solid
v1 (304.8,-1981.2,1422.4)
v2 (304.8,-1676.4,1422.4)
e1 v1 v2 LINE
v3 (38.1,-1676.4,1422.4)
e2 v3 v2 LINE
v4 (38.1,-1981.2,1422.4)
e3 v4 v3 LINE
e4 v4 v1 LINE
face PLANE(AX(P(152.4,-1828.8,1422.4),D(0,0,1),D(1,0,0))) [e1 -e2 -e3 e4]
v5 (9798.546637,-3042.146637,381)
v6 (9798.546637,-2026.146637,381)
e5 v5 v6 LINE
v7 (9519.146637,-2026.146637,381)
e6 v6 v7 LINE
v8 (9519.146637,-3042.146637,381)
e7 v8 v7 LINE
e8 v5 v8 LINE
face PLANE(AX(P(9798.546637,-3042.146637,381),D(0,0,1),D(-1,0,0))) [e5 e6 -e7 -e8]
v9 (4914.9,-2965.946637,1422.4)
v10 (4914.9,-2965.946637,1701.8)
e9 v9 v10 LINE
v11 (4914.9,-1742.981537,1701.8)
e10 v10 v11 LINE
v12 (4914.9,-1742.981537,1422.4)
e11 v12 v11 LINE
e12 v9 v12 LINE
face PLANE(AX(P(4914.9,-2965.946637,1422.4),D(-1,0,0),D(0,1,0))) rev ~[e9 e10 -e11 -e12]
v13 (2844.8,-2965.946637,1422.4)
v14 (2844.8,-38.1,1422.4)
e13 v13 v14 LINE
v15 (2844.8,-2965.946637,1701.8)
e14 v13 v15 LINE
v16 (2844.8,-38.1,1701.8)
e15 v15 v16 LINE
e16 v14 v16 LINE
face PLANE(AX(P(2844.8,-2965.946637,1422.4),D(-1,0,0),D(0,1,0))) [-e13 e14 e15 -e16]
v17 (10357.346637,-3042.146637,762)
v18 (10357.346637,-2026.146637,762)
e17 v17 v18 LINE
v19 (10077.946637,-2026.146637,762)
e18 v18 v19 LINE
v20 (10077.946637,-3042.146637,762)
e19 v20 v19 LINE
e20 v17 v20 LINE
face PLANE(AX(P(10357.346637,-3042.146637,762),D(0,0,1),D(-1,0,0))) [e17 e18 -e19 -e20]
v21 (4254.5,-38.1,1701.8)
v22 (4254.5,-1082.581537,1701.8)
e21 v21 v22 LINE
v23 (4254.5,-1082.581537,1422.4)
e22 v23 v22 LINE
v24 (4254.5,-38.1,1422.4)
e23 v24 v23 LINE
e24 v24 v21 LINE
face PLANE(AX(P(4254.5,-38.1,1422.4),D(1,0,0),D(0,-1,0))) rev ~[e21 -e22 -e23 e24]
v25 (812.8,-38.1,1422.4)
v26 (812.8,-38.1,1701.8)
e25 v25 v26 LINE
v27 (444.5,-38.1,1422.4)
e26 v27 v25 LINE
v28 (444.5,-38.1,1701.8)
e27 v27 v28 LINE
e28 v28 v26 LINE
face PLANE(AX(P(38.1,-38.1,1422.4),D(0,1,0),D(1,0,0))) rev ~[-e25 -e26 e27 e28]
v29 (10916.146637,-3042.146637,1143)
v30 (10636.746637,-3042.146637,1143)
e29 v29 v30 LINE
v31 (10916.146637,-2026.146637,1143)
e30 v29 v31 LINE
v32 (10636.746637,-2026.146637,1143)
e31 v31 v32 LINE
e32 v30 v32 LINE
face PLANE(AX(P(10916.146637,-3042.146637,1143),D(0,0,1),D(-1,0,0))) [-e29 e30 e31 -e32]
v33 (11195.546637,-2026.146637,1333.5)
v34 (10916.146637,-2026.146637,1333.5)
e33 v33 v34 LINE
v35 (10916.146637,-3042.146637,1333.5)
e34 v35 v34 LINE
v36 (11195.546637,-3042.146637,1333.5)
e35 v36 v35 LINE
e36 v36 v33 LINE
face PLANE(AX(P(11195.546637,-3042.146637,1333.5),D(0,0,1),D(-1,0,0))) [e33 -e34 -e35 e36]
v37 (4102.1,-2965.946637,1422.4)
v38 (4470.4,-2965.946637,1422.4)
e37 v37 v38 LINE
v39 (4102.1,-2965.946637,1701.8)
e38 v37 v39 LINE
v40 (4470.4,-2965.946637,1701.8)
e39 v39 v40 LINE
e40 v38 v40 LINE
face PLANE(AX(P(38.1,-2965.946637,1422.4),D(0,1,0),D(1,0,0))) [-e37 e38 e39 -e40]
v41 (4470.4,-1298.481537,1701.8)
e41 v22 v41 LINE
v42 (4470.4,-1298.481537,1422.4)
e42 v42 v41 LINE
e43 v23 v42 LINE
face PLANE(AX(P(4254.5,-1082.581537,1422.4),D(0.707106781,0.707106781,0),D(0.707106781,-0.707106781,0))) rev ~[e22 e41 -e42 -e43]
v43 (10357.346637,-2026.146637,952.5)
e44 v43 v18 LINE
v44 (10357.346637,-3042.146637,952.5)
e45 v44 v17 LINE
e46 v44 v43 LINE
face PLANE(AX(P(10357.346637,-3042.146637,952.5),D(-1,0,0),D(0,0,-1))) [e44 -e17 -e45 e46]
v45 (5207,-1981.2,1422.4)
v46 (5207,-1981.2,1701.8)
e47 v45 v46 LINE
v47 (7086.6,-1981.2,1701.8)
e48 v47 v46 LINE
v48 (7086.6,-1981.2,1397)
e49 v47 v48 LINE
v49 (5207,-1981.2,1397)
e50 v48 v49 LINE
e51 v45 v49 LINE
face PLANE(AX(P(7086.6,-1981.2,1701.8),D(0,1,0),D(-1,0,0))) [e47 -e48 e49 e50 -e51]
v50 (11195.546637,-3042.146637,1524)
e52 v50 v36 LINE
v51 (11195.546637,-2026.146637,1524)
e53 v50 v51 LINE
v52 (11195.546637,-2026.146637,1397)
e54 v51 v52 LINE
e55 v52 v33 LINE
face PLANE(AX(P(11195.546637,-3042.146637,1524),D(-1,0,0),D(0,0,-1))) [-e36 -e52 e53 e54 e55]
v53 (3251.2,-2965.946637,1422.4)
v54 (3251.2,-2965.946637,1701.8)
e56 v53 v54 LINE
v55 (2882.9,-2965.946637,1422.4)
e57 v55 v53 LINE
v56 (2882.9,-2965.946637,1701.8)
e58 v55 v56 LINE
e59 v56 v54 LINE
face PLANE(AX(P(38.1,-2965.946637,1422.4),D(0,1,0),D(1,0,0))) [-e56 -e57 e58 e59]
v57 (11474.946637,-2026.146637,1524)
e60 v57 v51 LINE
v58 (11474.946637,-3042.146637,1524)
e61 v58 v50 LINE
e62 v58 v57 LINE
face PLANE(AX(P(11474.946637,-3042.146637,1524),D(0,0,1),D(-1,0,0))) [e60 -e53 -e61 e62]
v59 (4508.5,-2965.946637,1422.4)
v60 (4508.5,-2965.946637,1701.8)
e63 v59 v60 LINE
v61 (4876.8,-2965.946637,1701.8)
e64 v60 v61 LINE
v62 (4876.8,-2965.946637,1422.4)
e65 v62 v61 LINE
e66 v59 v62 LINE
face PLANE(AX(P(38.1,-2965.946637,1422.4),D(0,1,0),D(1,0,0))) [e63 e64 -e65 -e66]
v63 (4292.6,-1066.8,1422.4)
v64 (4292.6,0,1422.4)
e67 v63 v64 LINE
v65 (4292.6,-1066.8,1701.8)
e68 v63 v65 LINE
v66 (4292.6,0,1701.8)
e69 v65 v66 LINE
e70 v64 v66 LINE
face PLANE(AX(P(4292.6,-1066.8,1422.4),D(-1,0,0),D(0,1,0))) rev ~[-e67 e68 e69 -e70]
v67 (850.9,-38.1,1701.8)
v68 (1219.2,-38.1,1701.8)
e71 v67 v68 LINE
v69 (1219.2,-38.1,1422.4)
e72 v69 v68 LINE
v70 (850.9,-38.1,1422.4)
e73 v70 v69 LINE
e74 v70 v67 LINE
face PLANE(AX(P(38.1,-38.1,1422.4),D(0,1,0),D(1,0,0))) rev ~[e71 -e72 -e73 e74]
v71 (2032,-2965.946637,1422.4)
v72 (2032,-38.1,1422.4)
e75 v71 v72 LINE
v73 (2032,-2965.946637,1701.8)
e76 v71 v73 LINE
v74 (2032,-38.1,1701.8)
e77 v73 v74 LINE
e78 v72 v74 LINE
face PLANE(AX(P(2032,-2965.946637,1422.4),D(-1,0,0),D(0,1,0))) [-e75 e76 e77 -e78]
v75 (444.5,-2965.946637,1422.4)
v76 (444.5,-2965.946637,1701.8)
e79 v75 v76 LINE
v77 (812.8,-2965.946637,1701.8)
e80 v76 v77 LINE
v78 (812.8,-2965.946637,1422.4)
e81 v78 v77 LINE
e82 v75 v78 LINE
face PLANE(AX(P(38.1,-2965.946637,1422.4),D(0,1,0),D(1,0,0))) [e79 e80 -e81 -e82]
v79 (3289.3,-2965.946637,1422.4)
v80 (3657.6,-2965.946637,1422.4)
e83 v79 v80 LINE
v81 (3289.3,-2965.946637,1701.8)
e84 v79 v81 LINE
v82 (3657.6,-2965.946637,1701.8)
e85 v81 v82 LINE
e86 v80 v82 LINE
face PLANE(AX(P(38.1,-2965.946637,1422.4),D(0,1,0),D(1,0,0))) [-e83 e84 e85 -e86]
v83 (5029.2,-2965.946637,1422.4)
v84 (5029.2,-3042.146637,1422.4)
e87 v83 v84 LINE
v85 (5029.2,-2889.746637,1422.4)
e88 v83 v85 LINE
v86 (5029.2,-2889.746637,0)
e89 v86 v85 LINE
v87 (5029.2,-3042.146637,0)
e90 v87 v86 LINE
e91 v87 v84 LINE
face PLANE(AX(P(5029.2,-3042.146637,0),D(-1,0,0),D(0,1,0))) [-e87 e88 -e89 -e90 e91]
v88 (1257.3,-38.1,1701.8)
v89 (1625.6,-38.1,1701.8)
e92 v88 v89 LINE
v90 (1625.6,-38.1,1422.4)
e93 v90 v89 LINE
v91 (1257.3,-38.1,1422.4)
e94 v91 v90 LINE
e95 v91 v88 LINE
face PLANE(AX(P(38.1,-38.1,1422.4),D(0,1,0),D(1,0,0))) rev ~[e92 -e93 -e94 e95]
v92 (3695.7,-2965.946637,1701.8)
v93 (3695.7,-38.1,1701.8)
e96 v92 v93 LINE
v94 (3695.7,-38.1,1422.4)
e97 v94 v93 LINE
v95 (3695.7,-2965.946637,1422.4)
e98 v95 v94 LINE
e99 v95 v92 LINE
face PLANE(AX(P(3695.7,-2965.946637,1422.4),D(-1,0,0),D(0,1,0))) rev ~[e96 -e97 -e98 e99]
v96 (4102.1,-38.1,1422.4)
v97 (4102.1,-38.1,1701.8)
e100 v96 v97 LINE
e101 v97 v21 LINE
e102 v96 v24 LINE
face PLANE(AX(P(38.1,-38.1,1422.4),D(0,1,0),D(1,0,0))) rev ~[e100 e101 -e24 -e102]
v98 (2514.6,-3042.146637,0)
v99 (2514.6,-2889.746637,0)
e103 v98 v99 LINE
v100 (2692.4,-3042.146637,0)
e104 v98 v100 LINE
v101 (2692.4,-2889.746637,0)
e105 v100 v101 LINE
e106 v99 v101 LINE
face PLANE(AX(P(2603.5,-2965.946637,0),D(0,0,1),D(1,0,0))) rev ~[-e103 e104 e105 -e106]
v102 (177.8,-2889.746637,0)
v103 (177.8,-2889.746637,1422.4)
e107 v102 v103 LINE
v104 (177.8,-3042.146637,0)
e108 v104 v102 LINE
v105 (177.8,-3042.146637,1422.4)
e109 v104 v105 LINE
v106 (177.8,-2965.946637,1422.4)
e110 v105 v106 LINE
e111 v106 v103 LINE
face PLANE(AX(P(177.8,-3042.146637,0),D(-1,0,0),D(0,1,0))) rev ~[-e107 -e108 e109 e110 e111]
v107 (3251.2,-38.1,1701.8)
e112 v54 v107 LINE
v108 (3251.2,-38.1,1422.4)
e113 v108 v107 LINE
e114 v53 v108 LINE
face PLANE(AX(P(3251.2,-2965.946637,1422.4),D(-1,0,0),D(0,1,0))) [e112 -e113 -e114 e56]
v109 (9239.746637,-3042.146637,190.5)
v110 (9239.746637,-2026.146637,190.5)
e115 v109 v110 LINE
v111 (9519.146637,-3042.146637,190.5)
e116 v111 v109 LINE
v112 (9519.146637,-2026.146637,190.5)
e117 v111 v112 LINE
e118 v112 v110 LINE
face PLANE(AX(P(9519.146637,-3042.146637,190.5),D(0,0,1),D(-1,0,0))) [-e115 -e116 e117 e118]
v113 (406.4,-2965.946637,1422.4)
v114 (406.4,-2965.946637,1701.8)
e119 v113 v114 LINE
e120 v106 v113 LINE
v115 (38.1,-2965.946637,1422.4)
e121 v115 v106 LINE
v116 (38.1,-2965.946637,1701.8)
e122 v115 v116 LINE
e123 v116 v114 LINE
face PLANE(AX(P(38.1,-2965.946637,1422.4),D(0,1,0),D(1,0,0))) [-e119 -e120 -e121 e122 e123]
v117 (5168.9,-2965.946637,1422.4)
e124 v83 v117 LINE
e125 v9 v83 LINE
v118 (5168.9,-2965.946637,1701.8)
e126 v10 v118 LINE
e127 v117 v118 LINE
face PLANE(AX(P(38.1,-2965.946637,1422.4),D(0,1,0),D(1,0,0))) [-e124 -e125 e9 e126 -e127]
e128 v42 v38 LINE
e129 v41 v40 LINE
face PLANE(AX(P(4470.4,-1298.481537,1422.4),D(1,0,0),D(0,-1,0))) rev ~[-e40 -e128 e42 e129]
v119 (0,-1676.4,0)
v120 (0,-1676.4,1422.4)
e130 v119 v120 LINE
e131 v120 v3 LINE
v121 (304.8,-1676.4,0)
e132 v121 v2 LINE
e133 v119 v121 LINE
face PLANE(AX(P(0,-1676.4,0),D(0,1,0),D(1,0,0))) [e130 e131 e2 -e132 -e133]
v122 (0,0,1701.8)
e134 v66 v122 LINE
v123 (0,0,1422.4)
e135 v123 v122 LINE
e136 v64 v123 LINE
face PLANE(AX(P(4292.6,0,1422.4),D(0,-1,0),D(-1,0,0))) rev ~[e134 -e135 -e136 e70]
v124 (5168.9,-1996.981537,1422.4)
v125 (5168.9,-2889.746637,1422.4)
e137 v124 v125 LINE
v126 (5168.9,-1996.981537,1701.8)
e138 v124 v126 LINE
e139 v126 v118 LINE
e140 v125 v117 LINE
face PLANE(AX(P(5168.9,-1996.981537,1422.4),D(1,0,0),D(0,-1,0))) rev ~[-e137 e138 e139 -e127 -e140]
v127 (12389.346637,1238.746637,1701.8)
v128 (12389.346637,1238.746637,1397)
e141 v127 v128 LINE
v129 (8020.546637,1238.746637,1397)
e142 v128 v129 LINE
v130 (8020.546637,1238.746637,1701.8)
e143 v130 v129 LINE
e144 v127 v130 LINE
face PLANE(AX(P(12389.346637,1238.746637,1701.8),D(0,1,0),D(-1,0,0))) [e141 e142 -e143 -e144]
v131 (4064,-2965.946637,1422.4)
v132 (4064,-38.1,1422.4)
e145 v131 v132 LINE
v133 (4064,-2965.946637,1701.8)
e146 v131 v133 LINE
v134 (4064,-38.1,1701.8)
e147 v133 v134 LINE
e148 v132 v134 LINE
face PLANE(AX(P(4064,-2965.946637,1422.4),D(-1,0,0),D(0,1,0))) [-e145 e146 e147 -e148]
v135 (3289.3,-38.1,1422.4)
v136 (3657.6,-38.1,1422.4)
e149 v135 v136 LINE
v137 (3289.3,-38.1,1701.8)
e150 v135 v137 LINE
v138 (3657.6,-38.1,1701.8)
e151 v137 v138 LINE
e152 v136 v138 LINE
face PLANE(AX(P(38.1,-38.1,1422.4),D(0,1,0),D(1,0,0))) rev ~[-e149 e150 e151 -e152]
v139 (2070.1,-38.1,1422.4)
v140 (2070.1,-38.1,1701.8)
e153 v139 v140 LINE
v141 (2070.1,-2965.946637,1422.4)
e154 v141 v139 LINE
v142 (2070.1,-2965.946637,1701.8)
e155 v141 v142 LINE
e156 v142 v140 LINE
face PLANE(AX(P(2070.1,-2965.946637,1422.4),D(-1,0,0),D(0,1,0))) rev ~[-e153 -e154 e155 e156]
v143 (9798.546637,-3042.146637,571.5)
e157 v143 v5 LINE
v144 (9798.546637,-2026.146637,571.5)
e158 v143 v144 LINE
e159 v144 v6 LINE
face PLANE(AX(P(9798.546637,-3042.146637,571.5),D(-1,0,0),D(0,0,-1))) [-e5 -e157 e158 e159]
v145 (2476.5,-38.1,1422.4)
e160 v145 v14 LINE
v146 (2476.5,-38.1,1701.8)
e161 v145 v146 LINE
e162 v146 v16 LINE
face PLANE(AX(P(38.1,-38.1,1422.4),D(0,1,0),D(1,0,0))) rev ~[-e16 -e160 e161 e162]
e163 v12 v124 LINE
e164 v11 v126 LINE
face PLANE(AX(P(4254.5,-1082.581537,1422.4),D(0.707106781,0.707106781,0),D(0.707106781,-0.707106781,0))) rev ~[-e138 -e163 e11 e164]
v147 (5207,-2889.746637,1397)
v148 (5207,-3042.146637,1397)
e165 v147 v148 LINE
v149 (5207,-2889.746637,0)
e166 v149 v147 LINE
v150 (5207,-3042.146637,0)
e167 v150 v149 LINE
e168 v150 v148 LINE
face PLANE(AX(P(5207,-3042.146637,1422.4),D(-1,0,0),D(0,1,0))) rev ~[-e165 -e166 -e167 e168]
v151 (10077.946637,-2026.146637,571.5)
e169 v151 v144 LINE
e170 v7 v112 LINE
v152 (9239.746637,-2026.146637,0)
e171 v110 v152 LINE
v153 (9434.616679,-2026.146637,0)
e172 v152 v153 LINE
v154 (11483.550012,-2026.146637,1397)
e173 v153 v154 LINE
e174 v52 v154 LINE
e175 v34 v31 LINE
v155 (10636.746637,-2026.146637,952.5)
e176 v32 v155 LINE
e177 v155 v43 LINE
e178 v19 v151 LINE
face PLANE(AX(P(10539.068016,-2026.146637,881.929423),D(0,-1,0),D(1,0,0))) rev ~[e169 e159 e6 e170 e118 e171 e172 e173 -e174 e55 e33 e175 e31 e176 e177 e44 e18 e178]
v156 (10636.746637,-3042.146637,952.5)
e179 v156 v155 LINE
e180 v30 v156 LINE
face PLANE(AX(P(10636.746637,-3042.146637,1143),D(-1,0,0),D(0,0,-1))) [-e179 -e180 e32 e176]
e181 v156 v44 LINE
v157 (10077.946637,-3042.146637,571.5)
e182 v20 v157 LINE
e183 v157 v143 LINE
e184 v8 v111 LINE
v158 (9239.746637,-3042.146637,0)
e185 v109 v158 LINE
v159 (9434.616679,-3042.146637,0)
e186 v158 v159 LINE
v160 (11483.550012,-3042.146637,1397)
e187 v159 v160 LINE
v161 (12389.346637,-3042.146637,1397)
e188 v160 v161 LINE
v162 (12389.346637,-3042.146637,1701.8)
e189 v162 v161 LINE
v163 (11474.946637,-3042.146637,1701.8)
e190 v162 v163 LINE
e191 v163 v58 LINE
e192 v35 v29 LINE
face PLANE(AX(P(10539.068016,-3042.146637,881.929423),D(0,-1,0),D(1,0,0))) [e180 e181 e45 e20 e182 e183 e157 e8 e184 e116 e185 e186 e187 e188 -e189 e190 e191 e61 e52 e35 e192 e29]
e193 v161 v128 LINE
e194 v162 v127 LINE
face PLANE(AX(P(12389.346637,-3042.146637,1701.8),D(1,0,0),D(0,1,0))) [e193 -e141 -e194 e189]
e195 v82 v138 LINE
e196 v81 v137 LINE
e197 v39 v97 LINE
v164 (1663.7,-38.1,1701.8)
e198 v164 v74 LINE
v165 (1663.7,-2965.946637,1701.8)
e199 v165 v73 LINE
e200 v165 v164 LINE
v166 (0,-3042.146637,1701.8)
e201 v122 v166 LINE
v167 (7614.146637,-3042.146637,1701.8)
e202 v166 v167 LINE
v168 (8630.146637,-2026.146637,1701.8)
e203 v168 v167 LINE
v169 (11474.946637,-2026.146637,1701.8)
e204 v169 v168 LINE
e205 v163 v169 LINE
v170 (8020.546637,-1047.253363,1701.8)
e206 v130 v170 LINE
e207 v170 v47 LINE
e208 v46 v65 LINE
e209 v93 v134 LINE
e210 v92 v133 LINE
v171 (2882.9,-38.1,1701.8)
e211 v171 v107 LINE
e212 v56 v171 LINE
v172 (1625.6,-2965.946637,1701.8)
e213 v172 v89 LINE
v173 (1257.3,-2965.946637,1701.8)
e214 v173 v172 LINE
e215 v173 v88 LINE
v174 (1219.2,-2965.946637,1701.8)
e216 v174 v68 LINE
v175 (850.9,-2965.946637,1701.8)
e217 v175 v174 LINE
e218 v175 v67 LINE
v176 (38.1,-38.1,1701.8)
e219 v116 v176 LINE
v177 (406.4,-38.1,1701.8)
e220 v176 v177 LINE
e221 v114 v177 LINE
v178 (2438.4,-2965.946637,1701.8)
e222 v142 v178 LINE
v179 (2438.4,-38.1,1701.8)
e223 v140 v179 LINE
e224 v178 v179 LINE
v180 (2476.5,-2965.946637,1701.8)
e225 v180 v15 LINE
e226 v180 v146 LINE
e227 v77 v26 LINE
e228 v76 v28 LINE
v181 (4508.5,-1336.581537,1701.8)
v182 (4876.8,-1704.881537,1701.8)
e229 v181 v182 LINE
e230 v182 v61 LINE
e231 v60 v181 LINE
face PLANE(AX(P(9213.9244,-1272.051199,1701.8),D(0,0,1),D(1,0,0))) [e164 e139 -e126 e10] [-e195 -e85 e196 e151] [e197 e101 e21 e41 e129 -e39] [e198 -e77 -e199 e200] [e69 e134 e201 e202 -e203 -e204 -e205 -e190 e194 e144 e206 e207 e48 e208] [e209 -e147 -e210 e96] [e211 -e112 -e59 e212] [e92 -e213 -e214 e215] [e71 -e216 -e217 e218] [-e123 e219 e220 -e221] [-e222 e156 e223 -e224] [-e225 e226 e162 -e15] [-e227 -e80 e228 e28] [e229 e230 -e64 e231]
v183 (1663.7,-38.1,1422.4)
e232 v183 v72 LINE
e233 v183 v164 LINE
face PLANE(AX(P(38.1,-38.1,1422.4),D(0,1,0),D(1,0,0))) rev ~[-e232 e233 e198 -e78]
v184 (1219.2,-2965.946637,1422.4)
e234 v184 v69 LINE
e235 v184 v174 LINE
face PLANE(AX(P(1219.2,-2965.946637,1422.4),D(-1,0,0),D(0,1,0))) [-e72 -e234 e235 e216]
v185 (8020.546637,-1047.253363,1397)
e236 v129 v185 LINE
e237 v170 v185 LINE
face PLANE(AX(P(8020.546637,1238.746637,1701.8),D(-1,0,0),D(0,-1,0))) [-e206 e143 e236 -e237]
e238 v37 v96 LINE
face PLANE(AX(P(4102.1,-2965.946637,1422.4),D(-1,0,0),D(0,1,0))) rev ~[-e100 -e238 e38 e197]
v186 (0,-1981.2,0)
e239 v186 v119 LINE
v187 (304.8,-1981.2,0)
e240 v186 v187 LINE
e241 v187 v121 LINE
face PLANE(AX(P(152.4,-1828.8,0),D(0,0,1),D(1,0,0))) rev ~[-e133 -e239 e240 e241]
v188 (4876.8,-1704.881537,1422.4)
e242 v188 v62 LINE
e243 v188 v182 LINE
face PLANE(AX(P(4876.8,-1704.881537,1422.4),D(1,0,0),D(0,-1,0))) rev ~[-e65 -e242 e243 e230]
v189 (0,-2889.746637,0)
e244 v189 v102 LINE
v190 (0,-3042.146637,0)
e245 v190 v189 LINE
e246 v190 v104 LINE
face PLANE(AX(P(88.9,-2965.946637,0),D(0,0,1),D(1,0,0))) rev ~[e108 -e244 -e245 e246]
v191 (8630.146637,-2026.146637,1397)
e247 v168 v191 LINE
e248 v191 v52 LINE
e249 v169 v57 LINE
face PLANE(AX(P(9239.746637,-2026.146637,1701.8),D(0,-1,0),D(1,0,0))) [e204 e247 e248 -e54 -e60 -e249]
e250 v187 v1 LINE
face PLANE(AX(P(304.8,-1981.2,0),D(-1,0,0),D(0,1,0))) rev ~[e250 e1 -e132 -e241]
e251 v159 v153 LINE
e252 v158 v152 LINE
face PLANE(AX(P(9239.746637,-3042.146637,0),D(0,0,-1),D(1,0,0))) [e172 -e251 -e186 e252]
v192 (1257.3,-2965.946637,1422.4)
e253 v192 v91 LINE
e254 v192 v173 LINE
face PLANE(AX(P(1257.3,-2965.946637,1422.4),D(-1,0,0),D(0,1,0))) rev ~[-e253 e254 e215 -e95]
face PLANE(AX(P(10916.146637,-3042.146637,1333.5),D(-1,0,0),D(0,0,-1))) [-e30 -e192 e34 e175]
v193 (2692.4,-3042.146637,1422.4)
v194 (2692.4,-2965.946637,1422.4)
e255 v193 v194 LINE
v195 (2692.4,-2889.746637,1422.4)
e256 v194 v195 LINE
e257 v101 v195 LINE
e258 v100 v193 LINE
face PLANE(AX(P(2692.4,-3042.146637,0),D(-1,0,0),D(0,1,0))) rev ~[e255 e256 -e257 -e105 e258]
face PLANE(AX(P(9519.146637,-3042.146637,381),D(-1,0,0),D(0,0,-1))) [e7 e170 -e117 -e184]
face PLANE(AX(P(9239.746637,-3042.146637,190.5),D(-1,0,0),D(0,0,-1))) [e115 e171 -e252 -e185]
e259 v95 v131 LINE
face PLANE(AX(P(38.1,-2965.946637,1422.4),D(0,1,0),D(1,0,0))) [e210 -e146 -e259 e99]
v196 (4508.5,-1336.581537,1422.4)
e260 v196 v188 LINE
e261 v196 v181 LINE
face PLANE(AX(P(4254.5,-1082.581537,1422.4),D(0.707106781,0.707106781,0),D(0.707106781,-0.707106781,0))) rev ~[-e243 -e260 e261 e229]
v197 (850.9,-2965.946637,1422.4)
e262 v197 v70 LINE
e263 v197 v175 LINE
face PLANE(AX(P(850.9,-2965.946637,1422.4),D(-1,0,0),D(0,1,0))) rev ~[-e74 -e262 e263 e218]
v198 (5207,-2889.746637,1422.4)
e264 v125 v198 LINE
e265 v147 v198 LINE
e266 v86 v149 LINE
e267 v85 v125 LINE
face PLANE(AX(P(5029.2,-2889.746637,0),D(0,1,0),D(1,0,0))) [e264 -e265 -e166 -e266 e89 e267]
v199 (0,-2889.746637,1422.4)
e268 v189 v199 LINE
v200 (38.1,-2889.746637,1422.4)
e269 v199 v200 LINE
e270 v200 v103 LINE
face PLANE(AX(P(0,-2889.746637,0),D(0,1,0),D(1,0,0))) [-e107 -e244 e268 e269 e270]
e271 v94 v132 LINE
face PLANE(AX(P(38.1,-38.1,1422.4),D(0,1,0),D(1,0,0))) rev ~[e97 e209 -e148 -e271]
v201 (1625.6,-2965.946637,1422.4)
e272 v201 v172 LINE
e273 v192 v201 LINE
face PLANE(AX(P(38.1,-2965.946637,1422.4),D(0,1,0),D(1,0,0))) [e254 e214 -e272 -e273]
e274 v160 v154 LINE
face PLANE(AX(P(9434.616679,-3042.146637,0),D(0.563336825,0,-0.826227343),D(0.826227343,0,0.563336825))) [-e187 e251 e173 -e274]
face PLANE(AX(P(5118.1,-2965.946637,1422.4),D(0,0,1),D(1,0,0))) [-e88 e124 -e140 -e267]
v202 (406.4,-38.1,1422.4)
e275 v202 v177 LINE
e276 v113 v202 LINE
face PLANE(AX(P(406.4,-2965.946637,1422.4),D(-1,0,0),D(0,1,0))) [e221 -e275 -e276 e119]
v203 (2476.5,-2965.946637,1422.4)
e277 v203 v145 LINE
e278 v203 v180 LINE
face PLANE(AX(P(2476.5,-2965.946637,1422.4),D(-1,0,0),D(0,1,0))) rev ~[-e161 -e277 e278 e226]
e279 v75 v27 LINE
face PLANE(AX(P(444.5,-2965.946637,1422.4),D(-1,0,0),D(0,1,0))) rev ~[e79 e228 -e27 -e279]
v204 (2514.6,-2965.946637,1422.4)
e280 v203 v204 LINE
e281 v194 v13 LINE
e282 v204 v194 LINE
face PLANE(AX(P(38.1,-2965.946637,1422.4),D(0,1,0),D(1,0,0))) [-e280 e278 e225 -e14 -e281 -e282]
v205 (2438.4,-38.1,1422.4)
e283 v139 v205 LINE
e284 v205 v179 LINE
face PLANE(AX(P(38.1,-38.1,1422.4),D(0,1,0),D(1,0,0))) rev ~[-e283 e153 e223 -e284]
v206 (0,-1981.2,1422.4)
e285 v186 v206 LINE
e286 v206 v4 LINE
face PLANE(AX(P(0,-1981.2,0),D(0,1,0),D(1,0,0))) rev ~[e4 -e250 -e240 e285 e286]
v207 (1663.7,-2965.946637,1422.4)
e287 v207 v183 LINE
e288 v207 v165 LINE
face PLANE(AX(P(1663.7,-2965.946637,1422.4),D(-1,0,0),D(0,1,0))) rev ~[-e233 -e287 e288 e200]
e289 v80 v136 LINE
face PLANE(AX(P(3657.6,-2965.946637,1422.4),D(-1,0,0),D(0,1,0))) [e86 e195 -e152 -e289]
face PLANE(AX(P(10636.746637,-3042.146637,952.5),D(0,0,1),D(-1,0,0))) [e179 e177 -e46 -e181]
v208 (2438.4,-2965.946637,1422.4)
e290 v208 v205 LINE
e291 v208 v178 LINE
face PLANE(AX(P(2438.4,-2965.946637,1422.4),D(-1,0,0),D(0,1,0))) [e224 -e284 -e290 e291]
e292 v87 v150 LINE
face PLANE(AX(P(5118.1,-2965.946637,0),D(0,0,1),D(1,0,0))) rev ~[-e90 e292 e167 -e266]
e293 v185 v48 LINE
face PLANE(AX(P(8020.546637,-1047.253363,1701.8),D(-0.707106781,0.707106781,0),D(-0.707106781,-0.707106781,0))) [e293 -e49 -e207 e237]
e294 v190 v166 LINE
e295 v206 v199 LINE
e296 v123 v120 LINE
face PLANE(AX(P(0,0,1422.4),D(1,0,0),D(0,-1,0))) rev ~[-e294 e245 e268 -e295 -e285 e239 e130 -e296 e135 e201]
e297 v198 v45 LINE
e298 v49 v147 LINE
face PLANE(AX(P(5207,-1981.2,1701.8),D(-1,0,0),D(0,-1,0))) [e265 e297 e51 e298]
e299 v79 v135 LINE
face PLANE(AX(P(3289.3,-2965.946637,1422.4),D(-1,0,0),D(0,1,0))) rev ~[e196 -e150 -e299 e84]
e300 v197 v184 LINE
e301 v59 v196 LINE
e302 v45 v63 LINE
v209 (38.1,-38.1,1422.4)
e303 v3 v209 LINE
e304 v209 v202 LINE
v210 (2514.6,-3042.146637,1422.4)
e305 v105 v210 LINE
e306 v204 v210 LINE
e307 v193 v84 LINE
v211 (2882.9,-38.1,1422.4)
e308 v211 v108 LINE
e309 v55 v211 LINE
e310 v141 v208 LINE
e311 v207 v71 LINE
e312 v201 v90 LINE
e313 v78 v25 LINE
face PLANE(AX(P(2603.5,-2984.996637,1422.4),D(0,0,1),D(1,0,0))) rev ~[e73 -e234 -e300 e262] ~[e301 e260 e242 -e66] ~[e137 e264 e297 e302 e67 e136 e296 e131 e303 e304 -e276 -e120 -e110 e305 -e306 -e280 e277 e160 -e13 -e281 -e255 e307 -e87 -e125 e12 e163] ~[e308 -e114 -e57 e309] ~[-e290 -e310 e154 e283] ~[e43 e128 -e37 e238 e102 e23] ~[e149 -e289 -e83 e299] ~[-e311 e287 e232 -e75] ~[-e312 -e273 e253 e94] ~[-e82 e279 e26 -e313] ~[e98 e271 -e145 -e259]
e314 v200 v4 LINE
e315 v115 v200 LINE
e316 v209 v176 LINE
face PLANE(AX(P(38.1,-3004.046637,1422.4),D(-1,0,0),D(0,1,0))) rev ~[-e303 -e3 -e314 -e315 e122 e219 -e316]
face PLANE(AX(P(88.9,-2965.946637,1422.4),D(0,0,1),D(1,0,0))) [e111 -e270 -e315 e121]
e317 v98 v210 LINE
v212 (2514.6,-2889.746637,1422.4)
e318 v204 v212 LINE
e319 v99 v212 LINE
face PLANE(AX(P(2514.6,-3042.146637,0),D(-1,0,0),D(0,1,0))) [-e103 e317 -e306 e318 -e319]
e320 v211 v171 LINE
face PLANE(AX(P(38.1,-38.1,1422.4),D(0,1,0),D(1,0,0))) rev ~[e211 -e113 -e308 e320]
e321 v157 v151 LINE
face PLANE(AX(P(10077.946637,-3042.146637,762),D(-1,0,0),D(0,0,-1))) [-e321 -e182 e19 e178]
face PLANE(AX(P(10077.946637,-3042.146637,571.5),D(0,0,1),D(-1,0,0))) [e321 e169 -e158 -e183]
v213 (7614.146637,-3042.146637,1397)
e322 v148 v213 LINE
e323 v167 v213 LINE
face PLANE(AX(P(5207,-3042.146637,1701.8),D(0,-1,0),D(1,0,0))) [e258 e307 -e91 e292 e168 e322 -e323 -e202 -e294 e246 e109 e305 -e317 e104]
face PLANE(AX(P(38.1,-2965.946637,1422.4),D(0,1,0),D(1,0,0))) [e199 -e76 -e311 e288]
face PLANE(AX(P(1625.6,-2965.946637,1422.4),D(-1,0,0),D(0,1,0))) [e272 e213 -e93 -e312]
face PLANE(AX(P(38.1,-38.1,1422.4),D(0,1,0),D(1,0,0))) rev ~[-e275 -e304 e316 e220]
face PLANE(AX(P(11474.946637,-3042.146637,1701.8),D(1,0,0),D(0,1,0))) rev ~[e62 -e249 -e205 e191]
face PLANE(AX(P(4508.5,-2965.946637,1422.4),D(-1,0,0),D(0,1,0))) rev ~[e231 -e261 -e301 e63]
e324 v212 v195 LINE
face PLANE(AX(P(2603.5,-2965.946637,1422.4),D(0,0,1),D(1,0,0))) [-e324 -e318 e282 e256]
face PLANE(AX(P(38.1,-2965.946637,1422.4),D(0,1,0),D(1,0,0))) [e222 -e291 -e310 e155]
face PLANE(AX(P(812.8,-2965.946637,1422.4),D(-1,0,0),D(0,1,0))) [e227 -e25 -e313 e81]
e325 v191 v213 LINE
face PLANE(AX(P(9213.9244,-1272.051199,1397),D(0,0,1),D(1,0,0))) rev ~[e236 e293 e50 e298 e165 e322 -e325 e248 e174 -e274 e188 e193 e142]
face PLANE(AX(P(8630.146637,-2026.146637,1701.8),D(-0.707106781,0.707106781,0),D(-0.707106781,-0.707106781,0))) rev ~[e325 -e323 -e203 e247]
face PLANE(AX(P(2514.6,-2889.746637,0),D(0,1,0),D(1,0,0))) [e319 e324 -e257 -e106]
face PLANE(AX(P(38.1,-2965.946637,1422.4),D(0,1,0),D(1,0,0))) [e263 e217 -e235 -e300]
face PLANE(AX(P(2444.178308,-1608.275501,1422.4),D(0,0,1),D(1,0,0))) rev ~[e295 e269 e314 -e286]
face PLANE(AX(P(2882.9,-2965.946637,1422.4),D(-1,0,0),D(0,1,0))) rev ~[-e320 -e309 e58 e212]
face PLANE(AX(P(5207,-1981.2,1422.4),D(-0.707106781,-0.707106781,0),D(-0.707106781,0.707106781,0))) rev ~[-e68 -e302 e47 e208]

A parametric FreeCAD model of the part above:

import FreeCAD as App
import Part
import Sketcher
Q = App.Units.Quantity


def add_polygon(sketch, points):
    """Adds a closed chain of lines whose ends are joined by coincident constraints."""
    first, n = sketch.GeometryCount, len(points)
    for a, b in zip(points, points[1:] + points[:1]):
        sketch.addGeometry(Part.LineSegment(App.Vector(*a, 0), App.Vector(*b, 0)), False)
    for i in range(n):
        sketch.addConstraint(Sketcher.Constraint("Coincident", first + i, 2, first + (i + 1) % n, 1))

doc = App.newDocument("Part")
params = doc.addObject("Spreadsheet::Sheet", "Params")
for row, (alias, value) in enumerate([
    ("sketch1_width", "12 in"),
    ("pad1_length", "56 in"),
    ("sketch2_width", "7 in"),
    ("sketch2_height", "6 in"),
    ("pad2_length", "56 in"),
    ("sketch3_width", "7 in"),
    ("sketch3_height", "6 in"),
    ("pad3_length", "56 in"),
    ("sketch4_width", "7 in"),
    ("sketch4_height", "6 in"),
    ("pad4_length", "56 in"),
    ("sketch5_width", "169 in"),
    ("sketch5_width2", "205 in"),
    ("sketch5_width3", "166 in"),
    ("sketch5_height", "42 in"),
    ("pad5_length", "11 in"),
    ("sketch6_width", "202 in"),
    ("sketch6_height", "1.5 in"),
    ("pad6_length", "11 in"),
    ("sketch7_width", "1.5 in"),
    ("pad7_length", "11 in"),
    ("sketch8_width", "74 in"),
    ("sketch8_width2", "172 in"),
    ("sketch8_height", "90 in"),
    ("sketch8_length", "52 in"),
    ("pad8_length", "12 in"),
    ("sketch9_width", "88 in"),
    ("sketch9_height", "40 in"),
    ("sketch10_width", "11 in"),
    ("sketch10_height", "7 in"),
    ("sketch10_height2", "7.5 in"),
    ("pad9_length", "40 in"),
    ("sketch11_width", "24 in"),
    ("sketch11_width2", "64 in"),
    ("sketch11_height", "40 in"),
], start=1):
    params.set(f"A{row}", alias)
    params.set(f"B{row}", "=" + value)
    params.setAlias(f"B{row}", alias)

body = doc.addObject("PartDesign::Body", "Body")

# Sketch on XY plane
sketch1 = doc.addObject("Sketcher::SketchObject", "Sketch")
body.addObject(sketch1)
sketch1.AttachmentSupport = (doc.XY_Plane, [""])
sketch1.MapMode = "FlatFace"
add_polygon(sketch1, [(0, -1676.4), (0, -1981.2), (304.8, -1981.2), (304.8, -1676.4)])  # lines 0-3
sketch1.addConstraint([
    Sketcher.Constraint("Vertical", 0),
    Sketcher.Constraint("Horizontal", 1),
    Sketcher.Constraint("Vertical", 2),
    Sketcher.Constraint("Horizontal", 3),
    Sketcher.Constraint("PointOnObject", 0, 2, -2),
    Sketcher.Constraint("Equal", 3, 0),
    Sketcher.Constraint("DistanceX", 1, 1, 1, 2, Q("12 in")),
    Sketcher.Constraint("DistanceY", 0, 2, -1, 1, Q("78 in")),
])
sketch1.setExpression("Constraints[10]", "Params.sketch1_width")
pad1 = doc.addObject("PartDesign::Pad", "Pad")
body.addObject(pad1)
pad1.Profile = sketch1
pad1.setExpression("Length", "Params.pad1_length")
body2 = doc.addObject("PartDesign::Body", "Body001")

# Sketch on XY plane
sketch2 = doc.addObject("Sketcher::SketchObject", "Sketch001")
body2.addObject(sketch2)
sketch2.AttachmentSupport = (doc.getObject("XY_Plane001"), [""])
sketch2.MapMode = "FlatFace"
add_polygon(sketch2, [(0, -2889.746637), (0, -3042.146637), (177.8, -3042.146637), (177.8, -2889.746637)])  # lines 0-3
sketch2.addConstraint([
    Sketcher.Constraint("Vertical", 0),
    Sketcher.Constraint("Horizontal", 1),
    Sketcher.Constraint("Vertical", 2),
    Sketcher.Constraint("Horizontal", 3),
    Sketcher.Constraint("PointOnObject", 0, 2, -2),
    Sketcher.Constraint("DistanceX", 1, 1, 1, 2, Q("7 in")),
    Sketcher.Constraint("DistanceY", 0, 2, 0, 1, Q("6 in")),
    Sketcher.Constraint("DistanceY", 0, 2, -1, 1, Q("3042.146637 mm")),
])
sketch2.setExpression("Constraints[9]", "Params.sketch2_width")
sketch2.setExpression("Constraints[10]", "Params.sketch2_height")
pad2 = doc.addObject("PartDesign::Pad", "Pad001")
body2.addObject(pad2)
pad2.Profile = sketch2
pad2.setExpression("Length", "Params.pad2_length")
body3 = doc.addObject("PartDesign::Body", "Body002")

# Sketch on XY plane
sketch3 = doc.addObject("Sketcher::SketchObject", "Sketch002")
body3.addObject(sketch3)
sketch3.AttachmentSupport = (doc.getObject("XY_Plane002"), [""])
sketch3.MapMode = "FlatFace"
add_polygon(sketch3, [(2514.6, -2889.746637), (2514.6, -3042.146637), (2692.4, -3042.146637), (2692.4, -2889.746637)])  # lines 0-3
sketch3.addConstraint([
    Sketcher.Constraint("Vertical", 0),
    Sketcher.Constraint("Horizontal", 1),
    Sketcher.Constraint("Vertical", 2),
    Sketcher.Constraint("Horizontal", 3),
    Sketcher.Constraint("DistanceX", 1, 1, 1, 2, Q("7 in")),
    Sketcher.Constraint("DistanceY", 0, 2, 0, 1, Q("6 in")),
    Sketcher.Constraint("DistanceX", -1, 1, 0, 2, Q("99 in")),
    Sketcher.Constraint("DistanceY", 0, 2, -1, 1, Q("3042.146637 mm")),
])
sketch3.setExpression("Constraints[8]", "Params.sketch3_width")
sketch3.setExpression("Constraints[9]", "Params.sketch3_height")
pad3 = doc.addObject("PartDesign::Pad", "Pad002")
body3.addObject(pad3)
pad3.Profile = sketch3
pad3.setExpression("Length", "Params.pad3_length")
body4 = doc.addObject("PartDesign::Body", "Body003")

# Sketch on XY plane
sketch4 = doc.addObject("Sketcher::SketchObject", "Sketch003")
body4.addObject(sketch4)
sketch4.AttachmentSupport = (doc.getObject("XY_Plane003"), [""])
sketch4.MapMode = "FlatFace"
add_polygon(sketch4, [(5029.2, -2889.746637), (5029.2, -3042.146637), (5207, -3042.146637), (5207, -2889.746637)])  # lines 0-3
sketch4.addConstraint([
    Sketcher.Constraint("Vertical", 0),
    Sketcher.Constraint("Horizontal", 1),
    Sketcher.Constraint("Vertical", 2),
    Sketcher.Constraint("Horizontal", 3),
    Sketcher.Constraint("DistanceX", 1, 1, 1, 2, Q("7 in")),
    Sketcher.Constraint("DistanceY", 0, 2, 0, 1, Q("6 in")),
    Sketcher.Constraint("DistanceX", -1, 1, 0, 2, Q("198 in")),
    Sketcher.Constraint("DistanceY", 0, 2, -1, 1, Q("3042.146637 mm")),
])
sketch4.setExpression("Constraints[8]", "Params.sketch4_width")
sketch4.setExpression("Constraints[9]", "Params.sketch4_height")
pad4 = doc.addObject("PartDesign::Pad", "Pad003")
body4.addObject(pad4)
pad4.Profile = sketch4
pad4.setExpression("Length", "Params.pad4_length")
body.AllowCompound = True
doc.recompute()

boolean = doc.addObject("PartDesign::Boolean", "Boolean")
body.addObject(boolean)
boolean.Type = "Fuse"
boolean.addObjects([body2])
doc.recompute()

boolean2 = doc.addObject("PartDesign::Boolean", "Boolean001")
body.addObject(boolean2)
boolean2.Type = "Fuse"
boolean2.addObjects([body3])
doc.recompute()

boolean3 = doc.addObject("PartDesign::Boolean", "Boolean002")
body.addObject(boolean3)
boolean3.Type = "Fuse"
boolean3.addObjects([body4])

# Sketch on XY plane
sketch5 = doc.addObject("Sketcher::SketchObject", "Sketch004")
body.addObject(sketch5)
sketch5.AttachmentSupport = (doc.XY_Plane, [""])
sketch5.MapMode = "FlatFace"
sketch5.AttachmentOffset = App.Placement(App.Vector(0, 0, 56 * 25.4), App.Rotation())
add_polygon(sketch5, [(4292.6, 0), (0, 0), (0, -3042.146637), (5207, -3042.146637), (5207, -1981.2), (4292.6, -1066.8)])  # lines 0-5
add_polygon(sketch5, [(38.1, -3004.046637), (38.1, -38.1), (4254.5, -38.1), (4254.5, -1082.581537), (5168.9, -1996.981537), (5168.9, -3004.046637)])  # lines 6-11
sketch5.addConstraint([
    Sketcher.Constraint("Horizontal", 0),
    Sketcher.Constraint("Vertical", 1),
    Sketcher.Constraint("Horizontal", 2),
    Sketcher.Constraint("Vertical", 3),
    Sketcher.Constraint("Vertical", 5),
    Sketcher.Constraint("Vertical", 6),
    Sketcher.Constraint("Horizontal", 7),
    Sketcher.Constraint("Vertical", 8),
    Sketcher.Constraint("Vertical", 10),
    Sketcher.Constraint("Horizontal", 11),
    Sketcher.Constraint("Coincident", 0, 2, -1, 1),
    Sketcher.Constraint("Parallel", 4, 9),
    Sketcher.Constraint("Equal", 4, 9),
    Sketcher.Constraint("DistanceX", 0, 2, 0, 1, Q("169 in")),
    Sketcher.Constraint("DistanceX", 2, 1, 2, 2, Q("205 in")),
    Sketcher.Constraint("DistanceX", 7, 1, 7, 2, Q("166 in")),
    Sketcher.Constraint("DistanceY", 5, 1, 5, 2, Q("42 in")),
    Sketcher.Constraint("DistanceY", 3, 2, -1, 1, Q("78 in")),
    Sketcher.Constraint("DistanceX", -1, 1, 6, 2, Q("1.5 in")),
    Sketcher.Constraint("DistanceY", 6, 2, -1, 1, Q("1.5 in")),
    Sketcher.Constraint("DistanceY", 2, 2, 10, 2, Q("1.5 in")),
    Sketcher.Constraint("DistanceY", 10, 2, 10, 1, Q("1007.0651 mm")),
    Sketcher.Constraint("DistanceY", 1, 2, 1, 1, Q("3042.146637 mm")),
])
sketch5.setExpression("Constraints[25]", "Params.sketch5_width")
sketch5.setExpression("Constraints[26]", "Params.sketch5_width2")
sketch5.setExpression("Constraints[27]", "Params.sketch5_width3")
sketch5.setExpression("Constraints[28]", "Params.sketch5_height")
pad5 = doc.addObject("PartDesign::Pad", "Pad004")
body.addObject(pad5)
pad5.Profile = sketch5
pad5.setExpression("Length", "Params.pad5_length")

# Sketch on XY plane
sketch6 = doc.addObject("Sketcher::SketchObject", "Sketch005")
body.addObject(sketch6)
sketch6.AttachmentSupport = (doc.XY_Plane, [""])
sketch6.MapMode = "FlatFace"
sketch6.AttachmentOffset = App.Placement(App.Vector(0, 0, 56 * 25.4), App.Rotation())
add_polygon(sketch6, [(38.1, -2965.946637), (38.1, -3004.046637), (5168.9, -3004.046637), (5168.9, -2965.946637)])  # lines 0-3
sketch6.addConstraint([
    Sketcher.Constraint("Vertical", 0),
    Sketcher.Constraint("Horizontal", 1),
    Sketcher.Constraint("Vertical", 2),
    Sketcher.Constraint("Horizontal", 3),
    Sketcher.Constraint("DistanceX", 1, 1, 1, 2, Q("202 in")),
    Sketcher.Constraint("DistanceY", 0, 2, 0, 1, Q("1.5 in")),
    Sketcher.Constraint("DistanceX", -1, 1, 0, 2, Q("1.5 in")),
    Sketcher.Constraint("DistanceY", 0, 2, -1, 1, Q("3004.046637 mm")),
])
sketch6.setExpression("Constraints[8]", "Params.sketch6_width")
sketch6.setExpression("Constraints[9]", "Params.sketch6_height")
pad6 = doc.addObject("PartDesign::Pad", "Pad005")
body.addObject(pad6)
pad6.Profile = sketch6
pad6.setExpression("Length", "Params.pad6_length")

# Sketch on XY plane
sketch7 = doc.addObject("Sketcher::SketchObject", "Sketch006")
body.addObject(sketch7)
sketch7.AttachmentSupport = (doc.XY_Plane, [""])
sketch7.MapMode = "FlatFace"
sketch7.AttachmentOffset = App.Placement(App.Vector(0, 0, 56 * 25.4), App.Rotation())
add_polygon(sketch7, [(406.4, -38.1), (406.4, -2965.946637), (444.5, -2965.946637), (444.5, -38.1)])  # lines 0-3
add_polygon(sketch7, [(812.8, -38.1), (812.8, -2965.946637), (850.9, -2965.946637), (850.9, -38.1)])  # lines 4-7
add_polygon(sketch7, [(1219.2, -38.1), (1219.2, -2965.946637), (1257.3, -2965.946637), (1257.3, -38.1)])  # lines 8-11
add_polygon(sketch7, [(1625.6, -38.1), (1625.6, -2965.946637), (1663.7, -2965.946637), (1663.7, -38.1)])  # lines 12-15
add_polygon(sketch7, [(2032, -38.1), (2032, -2965.946637), (2070.1, -2965.946637), (2070.1, -38.1)])  # lines 16-19
add_polygon(sketch7, [(2438.4, -38.1), (2438.4, -2965.946637), (2476.5, -2965.946637), (2476.5, -38.1)])  # lines 20-23
add_polygon(sketch7, [(2844.8, -38.1), (2844.8, -2965.946637), (2882.9, -2965.946637), (2882.9, -38.1)])  # lines 24-27
add_polygon(sketch7, [(3251.2, -38.1), (3251.2, -2965.946637), (3289.3, -2965.946637), (3289.3, -38.1)])  # lines 28-31
add_polygon(sketch7, [(3657.6, -38.1), (3657.6, -2965.946637), (3695.7, -2965.946637), (3695.7, -38.1)])  # lines 32-35
add_polygon(sketch7, [(4064, -38.1), (4064, -2965.946637), (4102.1, -2965.946637), (4102.1, -38.1)])  # lines 36-39
add_polygon(sketch7, [(4470.4, -1298.481537), (4470.4, -2965.946637), (4508.5, -2965.946637), (4508.5, -1336.581537)])  # lines 40-43
add_polygon(sketch7, [(4876.8, -1704.881537), (4876.8, -2965.946637), (4914.9, -2965.946637), (4914.9, -1742.981537)])  # lines 44-47
sketch7.addConstraint([
    Sketcher.Constraint("Vertical", 0),
    Sketcher.Constraint("Horizontal", 1),
    Sketcher.Constraint("Vertical", 2),
    Sketcher.Constraint("Horizontal", 3),
    Sketcher.Constraint("Vertical", 4),
    Sketcher.Constraint("Horizontal", 5),
    Sketcher.Constraint("Vertical", 6),
    Sketcher.Constraint("Horizontal", 7),
    Sketcher.Constraint("Vertical", 8),
    Sketcher.Constraint("Horizontal", 9),
    Sketcher.Constraint("Vertical", 10),
    Sketcher.Constraint("Horizontal", 11),
    Sketcher.Constraint("Vertical", 12),
    Sketcher.Constraint("Horizontal", 13),
    Sketcher.Constraint("Vertical", 14),
    Sketcher.Constraint("Horizontal", 15),
    Sketcher.Constraint("Vertical", 16),
    Sketcher.Constraint("Horizontal", 17),
    Sketcher.Constraint("Vertical", 18),
    Sketcher.Constraint("Horizontal", 19),
    Sketcher.Constraint("Vertical", 20),
    Sketcher.Constraint("Horizontal", 21),
    Sketcher.Constraint("Vertical", 22),
    Sketcher.Constraint("Horizontal", 23),
    Sketcher.Constraint("Vertical", 24),
    Sketcher.Constraint("Horizontal", 25),
    Sketcher.Constraint("Vertical", 26),
    Sketcher.Constraint("Horizontal", 27),
    Sketcher.Constraint("Vertical", 28),
    Sketcher.Constraint("Horizontal", 29),
    Sketcher.Constraint("Vertical", 30),
    Sketcher.Constraint("Horizontal", 31),
    Sketcher.Constraint("Vertical", 32),
    Sketcher.Constraint("Horizontal", 33),
    Sketcher.Constraint("Vertical", 34),
    Sketcher.Constraint("Horizontal", 35),
    Sketcher.Constraint("Vertical", 36),
    Sketcher.Constraint("Horizontal", 37),
    Sketcher.Constraint("Vertical", 38),
    Sketcher.Constraint("Horizontal", 39),
    Sketcher.Constraint("Vertical", 40),
    Sketcher.Constraint("Horizontal", 41),
    Sketcher.Constraint("Vertical", 42),
    Sketcher.Constraint("Vertical", 44),
    Sketcher.Constraint("Horizontal", 45),
    Sketcher.Constraint("Vertical", 46),
    Sketcher.Constraint("Parallel", 43, 47),
    Sketcher.Constraint("Horizontal", 1, 2, 4, 2),
    Sketcher.Constraint("Horizontal", 3, 2, 6, 2),
    Sketcher.Constraint("Horizontal", 5, 2, 8, 2),
    Sketcher.Constraint("Horizontal", 7, 2, 10, 2),
    Sketcher.Constraint("Horizontal", 9, 2, 12, 2),
    Sketcher.Constraint("Horizontal", 11, 2, 14, 2),
    Sketcher.Constraint("Horizontal", 13, 2, 16, 2),
    Sketcher.Constraint("Horizontal", 15, 2, 18, 2),
    Sketcher.Constraint("Horizontal", 17, 2, 20, 2),
    Sketcher.Constraint("Horizontal", 19, 2, 22, 2),
    Sketcher.Constraint("Horizontal", 21, 2, 24, 2),
    Sketcher.Constraint("Horizontal", 23, 2, 26, 2),
    Sketcher.Constraint("Horizontal", 25, 2, 28, 2),
    Sketcher.Constraint("Horizontal", 27, 2, 30, 2),
    Sketcher.Constraint("Horizontal", 29, 2, 32, 2),
    Sketcher.Constraint("Horizontal", 31, 2, 34, 2),
    Sketcher.Constraint("Horizontal", 33, 2, 36, 2),
    Sketcher.Constraint("Horizontal", 35, 2, 38, 2),
    Sketcher.Constraint("Horizontal", 37, 2, 40, 2),
    Sketcher.Constraint("Horizontal", 41, 2, 44, 2),
    Sketcher.Constraint("Equal", 3, 5),
    Sketcher.Constraint("Equal", 7, 9),
    Sketcher.Constraint("Equal", 11, 13),
    Sketcher.Constraint("Equal", 15, 17),
    Sketcher.Constraint("Equal", 19, 21),
    Sketcher.Constraint("Equal", 23, 25),
    Sketcher.Constraint("Equal", 27, 29),
    Sketcher.Constraint("Equal", 31, 33),
    Sketcher.Constraint("Equal", 35, 37),
    Sketcher.Constraint("Equal", 39, 41),
    Sketcher.Constraint("Equal", 41, 45),
    Sketcher.Constraint("DistanceX", 1, 1, 1, 2, Q("1.5 in")),
    Sketcher.Constraint("DistanceX", -1, 1, 0, 2, Q("16 in")),
    Sketcher.Constraint("DistanceX", -1, 1, 4, 2, Q("32 in")),
    Sketcher.Constraint("DistanceX", -1, 1, 8, 2, Q("48 in")),
    Sketcher.Constraint("DistanceX", -1, 1, 12, 2, Q("64 in")),
    Sketcher.Constraint("DistanceX", -1, 1, 16, 2, Q("80 in")),
    Sketcher.Constraint("DistanceX", -1, 1, 20, 2, Q("96 in")),
    Sketcher.Constraint("DistanceX", -1, 1, 24, 2, Q("112 in")),
    Sketcher.Constraint("DistanceX", -1, 1, 28, 2, Q("128 in")),
    Sketcher.Constraint("DistanceX", -1, 1, 32, 2, Q("144 in")),
    Sketcher.Constraint("DistanceX", -1, 1, 36, 2, Q("160 in")),
    Sketcher.Constraint("DistanceX", -1, 1, 40, 2, Q("176 in")),
    Sketcher.Constraint("DistanceX", -1, 1, 44, 2, Q("192 in")),
    Sketcher.Constraint("Angle", 43, Q("135 deg")),
    Sketcher.Constraint("DistanceY", 46, 2, 42, 2, Q("16 in")),
    Sketcher.Constraint("DistanceY", 2, 2, -1, 1, Q("1.5 in")),
    Sketcher.Constraint("DistanceY", 40, 2, 40, 1, Q("1667.4651 mm")),
    Sketcher.Constraint("DistanceY", 0, 2, 0, 1, Q("2927.846637 mm")),
])
sketch7.setExpression("Constraints[126]", "Params.sketch7_width")
pad7 = doc.addObject("PartDesign::Pad", "Pad006")
body.addObject(pad7)
pad7.Profile = sketch7
pad7.setExpression("Length", "Params.pad7_length")

# Sketch on XY plane
sketch8 = doc.addObject("Sketcher::SketchObject", "Sketch007")
body.addObject(sketch8)
sketch8.AttachmentSupport = (doc.XY_Plane, [""])
sketch8.MapMode = "FlatFace"
sketch8.AttachmentOffset = App.Placement(App.Vector(0, 0, 67 * 25.4), App.Rotation())
add_polygon(sketch8, [(7086.6, -1981.2), (5207, -1981.2), (5207, -3042.146637), (12389.346637, -3042.146637), (12389.346637, 1238.746637), (8020.546637, 1238.746637), (8020.546637, -1047.253363)])  # lines 0-6
sketch8.addConstraint([
    Sketcher.Constraint("Horizontal", 0),
    Sketcher.Constraint("Vertical", 1),
    Sketcher.Constraint("Horizontal", 2),
    Sketcher.Constraint("Vertical", 3),
    Sketcher.Constraint("Horizontal", 4),
    Sketcher.Constraint("Vertical", 5),
    Sketcher.Constraint("DistanceX", 0, 2, 0, 1, Q("74 in")),
    Sketcher.Constraint("DistanceX", 4, 2, 4, 1, Q("172 in")),
    Sketcher.Constraint("DistanceY", 5, 2, 5, 1, Q("90 in")),
    Sketcher.Constraint("Distance", 6, Q("52 in")),
    Sketcher.Constraint("DistanceX", -1, 1, 0, 2, Q("205 in")),
    Sketcher.Constraint("DistanceY", 0, 2, -1, 1, Q("78 in")),
    Sketcher.Constraint("Angle", 6, Q("-135 deg")),
    Sketcher.Constraint("DistanceY", 1, 2, 1, 1, Q("1060.946637 mm")),
])
sketch8.setExpression("Constraints[13]", "Params.sketch8_width")
sketch8.setExpression("Constraints[14]", "Params.sketch8_width2")
sketch8.setExpression("Constraints[15]", "Params.sketch8_height")
sketch8.setExpression("Constraints[16]", "Params.sketch8_length")
pad8 = doc.addObject("PartDesign::Pad", "Pad007")
body.addObject(pad8)
pad8.Profile = sketch8
pad8.setExpression("Length", "Params.pad8_length")
pad8.Reversed = True

# Sketch on XY plane
sketch9 = doc.addObject("Sketcher::SketchObject", "Sketch008")
body.addObject(sketch9)
sketch9.AttachmentSupport = (doc.XY_Plane, [""])
sketch9.MapMode = "FlatFace"
sketch9.AttachmentOffset = App.Placement(App.Vector(0, 0, 67 * 25.4), App.Rotation())
add_polygon(sketch9, [(9239.746637, -2026.146637), (9239.746637, -3042.146637), (11474.946637, -3042.146637), (11474.946637, -2026.146637)])  # lines 0-3
sketch9.addConstraint([
    Sketcher.Constraint("Vertical", 0),
    Sketcher.Constraint("Horizontal", 1),
    Sketcher.Constraint("Vertical", 2),
    Sketcher.Constraint("Horizontal", 3),
    Sketcher.Constraint("DistanceX", 1, 1, 1, 2, Q("88 in")),
    Sketcher.Constraint("DistanceY", 0, 2, 0, 1, Q("40 in")),
    Sketcher.Constraint("DistanceX", -1, 1, 0, 2, Q("9239.746637 mm")),
    Sketcher.Constraint("DistanceY", 0, 2, -1, 1, Q("3042.146637 mm")),
])
sketch9.setExpression("Constraints[8]", "Params.sketch9_width")
sketch9.setExpression("Constraints[9]", "Params.sketch9_height")
pocket1 = doc.addObject("PartDesign::Pocket", "Pocket")
body.addObject(pocket1)
pocket1.Profile = sketch9
pocket1.Type = "ThroughAll"

# Sketch on XZ plane
sketch10 = doc.addObject("Sketcher::SketchObject", "Sketch009")
body.addObject(sketch10)
sketch10.AttachmentSupport = (doc.XZ_Plane, [""])
sketch10.MapMode = "FlatFace"
sketch10.AttachmentOffset = App.Placement(App.Vector(0, 0, 3042.146637), App.Rotation())
add_polygon(sketch10, [(11474.946637, 1524), (11195.546637, 1524), (11195.546637, 1333.5), (10916.146637, 1333.5), (10916.146637, 1143), (10636.746637, 1143), (10636.746637, 952.5), (10357.346637, 952.5), (10357.346637, 762), (10077.946637, 762), (10077.946637, 571.5), (9798.546637, 571.5), (9798.546637, 381), (9519.146637, 381), (9519.146637, 190.5), (9239.746637, 190.5), (9239.746637, 0), (9434.616679, 0), (11930.590012, 1701.8), (11474.946637, 1701.8)])  # lines 0-19
sketch10.addConstraint([
    Sketcher.Constraint("Horizontal", 0),
    Sketcher.Constraint("Vertical", 1),
    Sketcher.Constraint("Horizontal", 2),
    Sketcher.Constraint("Vertical", 3),
    Sketcher.Constraint("Horizontal", 4),
    Sketcher.Constraint("Vertical", 5),
    Sketcher.Constraint("Horizontal", 6),
    Sketcher.Constraint("Vertical", 7),
    Sketcher.Constraint("Horizontal", 8),
    Sketcher.Constraint("Vertical", 9),
    Sketcher.Constraint("Horizontal", 10),
    Sketcher.Constraint("Vertical", 11),
    Sketcher.Constraint("Horizontal", 12),
    Sketcher.Constraint("Vertical", 13),
    Sketcher.Constraint("Horizontal", 14),
    Sketcher.Constraint("Vertical", 15),
    Sketcher.Constraint("Horizontal", 16),
    Sketcher.Constraint("Horizontal", 18),
    Sketcher.Constraint("Vertical", 19),
    Sketcher.Constraint("PointOnObject", 15, 2, -1),
    Sketcher.Constraint("Equal", 0, 2),
    Sketcher.Constraint("Equal", 2, 4),
    Sketcher.Constraint("Equal", 4, 6),
    Sketcher.Constraint("Equal", 6, 8),
    Sketcher.Constraint("Equal", 8, 10),
    Sketcher.Constraint("Equal", 10, 12),
    Sketcher.Constraint("Equal", 12, 14),
    Sketcher.Constraint("Equal", 1, 3),
    Sketcher.Constraint("Equal", 3, 5),
    Sketcher.Constraint("Equal", 5, 7),
    Sketcher.Constraint("Equal", 7, 9),
    Sketcher.Constraint("Equal", 9, 11),
    Sketcher.Constraint("Equal", 11, 13),
    Sketcher.Constraint("Equal", 13, 15),
    Sketcher.Constraint("DistanceX", 0, 2, 0, 1, Q("11 in")),
    Sketcher.Constraint("DistanceY", 19, 2, 19, 1, Q("7 in")),
    Sketcher.Constraint("DistanceY", 1, 2, 1, 1, Q("7.5 in")),
    Sketcher.Constraint("DistanceX", 16, 1, 16, 2, Q("194.870043 mm")),
    Sketcher.Constraint("DistanceX", 18, 2, 18, 1, Q("455.643376 mm")),
    Sketcher.Constraint("DistanceX", -1, 1, 16, 2, Q("9434.616679 mm")),
])
sketch10.setExpression("Constraints[54]", "Params.sketch10_width")
sketch10.setExpression("Constraints[55]", "Params.sketch10_height")
sketch10.setExpression("Constraints[56]", "Params.sketch10_height2")
pad9 = doc.addObject("PartDesign::Pad", "Pad008")
body.addObject(pad9)
pad9.Profile = sketch10
pad9.setExpression("Length", "Params.pad9_length")
pad9.Reversed = True

# Sketch on XY plane
sketch11 = doc.addObject("Sketcher::SketchObject", "Sketch010")
body.addObject(sketch11)
sketch11.AttachmentSupport = (doc.XY_Plane, [""])
sketch11.MapMode = "FlatFace"
sketch11.AttachmentOffset = App.Placement(App.Vector(0, 0, 67 * 25.4), App.Rotation())
add_polygon(sketch11, [(9239.746637, -3042.146637), (9239.746637, -2026.146637), (8630.146637, -2026.146637), (7614.146637, -3042.146637)])  # lines 0-3
sketch11.addConstraint([
    Sketcher.Constraint("Vertical", 0),
    Sketcher.Constraint("Horizontal", 1),
    Sketcher.Constraint("Horizontal", 3),
    Sketcher.Constraint("DistanceX", 1, 2, 1, 1, Q("24 in")),
    Sketcher.Constraint("DistanceX", 3, 1, 3, 2, Q("64 in")),
    Sketcher.Constraint("DistanceY", 0, 1, 0, 2, Q("40 in")),
    Sketcher.Constraint("DistanceX", -1, 1, 0, 2, Q("9239.746637 mm")),
    Sketcher.Constraint("DistanceY", 0, 2, -1, 1, Q("2026.146637 mm")),
])
sketch11.setExpression("Constraints[7]", "Params.sketch11_width")
sketch11.setExpression("Constraints[8]", "Params.sketch11_width2")
sketch11.setExpression("Constraints[9]", "Params.sketch11_height")
pocket2 = doc.addObject("PartDesign::Pocket", "Pocket001")
body.addObject(pocket2)
pocket2.Profile = sketch11
pocket2.Type = "ThroughAll"

doc.recompute()
